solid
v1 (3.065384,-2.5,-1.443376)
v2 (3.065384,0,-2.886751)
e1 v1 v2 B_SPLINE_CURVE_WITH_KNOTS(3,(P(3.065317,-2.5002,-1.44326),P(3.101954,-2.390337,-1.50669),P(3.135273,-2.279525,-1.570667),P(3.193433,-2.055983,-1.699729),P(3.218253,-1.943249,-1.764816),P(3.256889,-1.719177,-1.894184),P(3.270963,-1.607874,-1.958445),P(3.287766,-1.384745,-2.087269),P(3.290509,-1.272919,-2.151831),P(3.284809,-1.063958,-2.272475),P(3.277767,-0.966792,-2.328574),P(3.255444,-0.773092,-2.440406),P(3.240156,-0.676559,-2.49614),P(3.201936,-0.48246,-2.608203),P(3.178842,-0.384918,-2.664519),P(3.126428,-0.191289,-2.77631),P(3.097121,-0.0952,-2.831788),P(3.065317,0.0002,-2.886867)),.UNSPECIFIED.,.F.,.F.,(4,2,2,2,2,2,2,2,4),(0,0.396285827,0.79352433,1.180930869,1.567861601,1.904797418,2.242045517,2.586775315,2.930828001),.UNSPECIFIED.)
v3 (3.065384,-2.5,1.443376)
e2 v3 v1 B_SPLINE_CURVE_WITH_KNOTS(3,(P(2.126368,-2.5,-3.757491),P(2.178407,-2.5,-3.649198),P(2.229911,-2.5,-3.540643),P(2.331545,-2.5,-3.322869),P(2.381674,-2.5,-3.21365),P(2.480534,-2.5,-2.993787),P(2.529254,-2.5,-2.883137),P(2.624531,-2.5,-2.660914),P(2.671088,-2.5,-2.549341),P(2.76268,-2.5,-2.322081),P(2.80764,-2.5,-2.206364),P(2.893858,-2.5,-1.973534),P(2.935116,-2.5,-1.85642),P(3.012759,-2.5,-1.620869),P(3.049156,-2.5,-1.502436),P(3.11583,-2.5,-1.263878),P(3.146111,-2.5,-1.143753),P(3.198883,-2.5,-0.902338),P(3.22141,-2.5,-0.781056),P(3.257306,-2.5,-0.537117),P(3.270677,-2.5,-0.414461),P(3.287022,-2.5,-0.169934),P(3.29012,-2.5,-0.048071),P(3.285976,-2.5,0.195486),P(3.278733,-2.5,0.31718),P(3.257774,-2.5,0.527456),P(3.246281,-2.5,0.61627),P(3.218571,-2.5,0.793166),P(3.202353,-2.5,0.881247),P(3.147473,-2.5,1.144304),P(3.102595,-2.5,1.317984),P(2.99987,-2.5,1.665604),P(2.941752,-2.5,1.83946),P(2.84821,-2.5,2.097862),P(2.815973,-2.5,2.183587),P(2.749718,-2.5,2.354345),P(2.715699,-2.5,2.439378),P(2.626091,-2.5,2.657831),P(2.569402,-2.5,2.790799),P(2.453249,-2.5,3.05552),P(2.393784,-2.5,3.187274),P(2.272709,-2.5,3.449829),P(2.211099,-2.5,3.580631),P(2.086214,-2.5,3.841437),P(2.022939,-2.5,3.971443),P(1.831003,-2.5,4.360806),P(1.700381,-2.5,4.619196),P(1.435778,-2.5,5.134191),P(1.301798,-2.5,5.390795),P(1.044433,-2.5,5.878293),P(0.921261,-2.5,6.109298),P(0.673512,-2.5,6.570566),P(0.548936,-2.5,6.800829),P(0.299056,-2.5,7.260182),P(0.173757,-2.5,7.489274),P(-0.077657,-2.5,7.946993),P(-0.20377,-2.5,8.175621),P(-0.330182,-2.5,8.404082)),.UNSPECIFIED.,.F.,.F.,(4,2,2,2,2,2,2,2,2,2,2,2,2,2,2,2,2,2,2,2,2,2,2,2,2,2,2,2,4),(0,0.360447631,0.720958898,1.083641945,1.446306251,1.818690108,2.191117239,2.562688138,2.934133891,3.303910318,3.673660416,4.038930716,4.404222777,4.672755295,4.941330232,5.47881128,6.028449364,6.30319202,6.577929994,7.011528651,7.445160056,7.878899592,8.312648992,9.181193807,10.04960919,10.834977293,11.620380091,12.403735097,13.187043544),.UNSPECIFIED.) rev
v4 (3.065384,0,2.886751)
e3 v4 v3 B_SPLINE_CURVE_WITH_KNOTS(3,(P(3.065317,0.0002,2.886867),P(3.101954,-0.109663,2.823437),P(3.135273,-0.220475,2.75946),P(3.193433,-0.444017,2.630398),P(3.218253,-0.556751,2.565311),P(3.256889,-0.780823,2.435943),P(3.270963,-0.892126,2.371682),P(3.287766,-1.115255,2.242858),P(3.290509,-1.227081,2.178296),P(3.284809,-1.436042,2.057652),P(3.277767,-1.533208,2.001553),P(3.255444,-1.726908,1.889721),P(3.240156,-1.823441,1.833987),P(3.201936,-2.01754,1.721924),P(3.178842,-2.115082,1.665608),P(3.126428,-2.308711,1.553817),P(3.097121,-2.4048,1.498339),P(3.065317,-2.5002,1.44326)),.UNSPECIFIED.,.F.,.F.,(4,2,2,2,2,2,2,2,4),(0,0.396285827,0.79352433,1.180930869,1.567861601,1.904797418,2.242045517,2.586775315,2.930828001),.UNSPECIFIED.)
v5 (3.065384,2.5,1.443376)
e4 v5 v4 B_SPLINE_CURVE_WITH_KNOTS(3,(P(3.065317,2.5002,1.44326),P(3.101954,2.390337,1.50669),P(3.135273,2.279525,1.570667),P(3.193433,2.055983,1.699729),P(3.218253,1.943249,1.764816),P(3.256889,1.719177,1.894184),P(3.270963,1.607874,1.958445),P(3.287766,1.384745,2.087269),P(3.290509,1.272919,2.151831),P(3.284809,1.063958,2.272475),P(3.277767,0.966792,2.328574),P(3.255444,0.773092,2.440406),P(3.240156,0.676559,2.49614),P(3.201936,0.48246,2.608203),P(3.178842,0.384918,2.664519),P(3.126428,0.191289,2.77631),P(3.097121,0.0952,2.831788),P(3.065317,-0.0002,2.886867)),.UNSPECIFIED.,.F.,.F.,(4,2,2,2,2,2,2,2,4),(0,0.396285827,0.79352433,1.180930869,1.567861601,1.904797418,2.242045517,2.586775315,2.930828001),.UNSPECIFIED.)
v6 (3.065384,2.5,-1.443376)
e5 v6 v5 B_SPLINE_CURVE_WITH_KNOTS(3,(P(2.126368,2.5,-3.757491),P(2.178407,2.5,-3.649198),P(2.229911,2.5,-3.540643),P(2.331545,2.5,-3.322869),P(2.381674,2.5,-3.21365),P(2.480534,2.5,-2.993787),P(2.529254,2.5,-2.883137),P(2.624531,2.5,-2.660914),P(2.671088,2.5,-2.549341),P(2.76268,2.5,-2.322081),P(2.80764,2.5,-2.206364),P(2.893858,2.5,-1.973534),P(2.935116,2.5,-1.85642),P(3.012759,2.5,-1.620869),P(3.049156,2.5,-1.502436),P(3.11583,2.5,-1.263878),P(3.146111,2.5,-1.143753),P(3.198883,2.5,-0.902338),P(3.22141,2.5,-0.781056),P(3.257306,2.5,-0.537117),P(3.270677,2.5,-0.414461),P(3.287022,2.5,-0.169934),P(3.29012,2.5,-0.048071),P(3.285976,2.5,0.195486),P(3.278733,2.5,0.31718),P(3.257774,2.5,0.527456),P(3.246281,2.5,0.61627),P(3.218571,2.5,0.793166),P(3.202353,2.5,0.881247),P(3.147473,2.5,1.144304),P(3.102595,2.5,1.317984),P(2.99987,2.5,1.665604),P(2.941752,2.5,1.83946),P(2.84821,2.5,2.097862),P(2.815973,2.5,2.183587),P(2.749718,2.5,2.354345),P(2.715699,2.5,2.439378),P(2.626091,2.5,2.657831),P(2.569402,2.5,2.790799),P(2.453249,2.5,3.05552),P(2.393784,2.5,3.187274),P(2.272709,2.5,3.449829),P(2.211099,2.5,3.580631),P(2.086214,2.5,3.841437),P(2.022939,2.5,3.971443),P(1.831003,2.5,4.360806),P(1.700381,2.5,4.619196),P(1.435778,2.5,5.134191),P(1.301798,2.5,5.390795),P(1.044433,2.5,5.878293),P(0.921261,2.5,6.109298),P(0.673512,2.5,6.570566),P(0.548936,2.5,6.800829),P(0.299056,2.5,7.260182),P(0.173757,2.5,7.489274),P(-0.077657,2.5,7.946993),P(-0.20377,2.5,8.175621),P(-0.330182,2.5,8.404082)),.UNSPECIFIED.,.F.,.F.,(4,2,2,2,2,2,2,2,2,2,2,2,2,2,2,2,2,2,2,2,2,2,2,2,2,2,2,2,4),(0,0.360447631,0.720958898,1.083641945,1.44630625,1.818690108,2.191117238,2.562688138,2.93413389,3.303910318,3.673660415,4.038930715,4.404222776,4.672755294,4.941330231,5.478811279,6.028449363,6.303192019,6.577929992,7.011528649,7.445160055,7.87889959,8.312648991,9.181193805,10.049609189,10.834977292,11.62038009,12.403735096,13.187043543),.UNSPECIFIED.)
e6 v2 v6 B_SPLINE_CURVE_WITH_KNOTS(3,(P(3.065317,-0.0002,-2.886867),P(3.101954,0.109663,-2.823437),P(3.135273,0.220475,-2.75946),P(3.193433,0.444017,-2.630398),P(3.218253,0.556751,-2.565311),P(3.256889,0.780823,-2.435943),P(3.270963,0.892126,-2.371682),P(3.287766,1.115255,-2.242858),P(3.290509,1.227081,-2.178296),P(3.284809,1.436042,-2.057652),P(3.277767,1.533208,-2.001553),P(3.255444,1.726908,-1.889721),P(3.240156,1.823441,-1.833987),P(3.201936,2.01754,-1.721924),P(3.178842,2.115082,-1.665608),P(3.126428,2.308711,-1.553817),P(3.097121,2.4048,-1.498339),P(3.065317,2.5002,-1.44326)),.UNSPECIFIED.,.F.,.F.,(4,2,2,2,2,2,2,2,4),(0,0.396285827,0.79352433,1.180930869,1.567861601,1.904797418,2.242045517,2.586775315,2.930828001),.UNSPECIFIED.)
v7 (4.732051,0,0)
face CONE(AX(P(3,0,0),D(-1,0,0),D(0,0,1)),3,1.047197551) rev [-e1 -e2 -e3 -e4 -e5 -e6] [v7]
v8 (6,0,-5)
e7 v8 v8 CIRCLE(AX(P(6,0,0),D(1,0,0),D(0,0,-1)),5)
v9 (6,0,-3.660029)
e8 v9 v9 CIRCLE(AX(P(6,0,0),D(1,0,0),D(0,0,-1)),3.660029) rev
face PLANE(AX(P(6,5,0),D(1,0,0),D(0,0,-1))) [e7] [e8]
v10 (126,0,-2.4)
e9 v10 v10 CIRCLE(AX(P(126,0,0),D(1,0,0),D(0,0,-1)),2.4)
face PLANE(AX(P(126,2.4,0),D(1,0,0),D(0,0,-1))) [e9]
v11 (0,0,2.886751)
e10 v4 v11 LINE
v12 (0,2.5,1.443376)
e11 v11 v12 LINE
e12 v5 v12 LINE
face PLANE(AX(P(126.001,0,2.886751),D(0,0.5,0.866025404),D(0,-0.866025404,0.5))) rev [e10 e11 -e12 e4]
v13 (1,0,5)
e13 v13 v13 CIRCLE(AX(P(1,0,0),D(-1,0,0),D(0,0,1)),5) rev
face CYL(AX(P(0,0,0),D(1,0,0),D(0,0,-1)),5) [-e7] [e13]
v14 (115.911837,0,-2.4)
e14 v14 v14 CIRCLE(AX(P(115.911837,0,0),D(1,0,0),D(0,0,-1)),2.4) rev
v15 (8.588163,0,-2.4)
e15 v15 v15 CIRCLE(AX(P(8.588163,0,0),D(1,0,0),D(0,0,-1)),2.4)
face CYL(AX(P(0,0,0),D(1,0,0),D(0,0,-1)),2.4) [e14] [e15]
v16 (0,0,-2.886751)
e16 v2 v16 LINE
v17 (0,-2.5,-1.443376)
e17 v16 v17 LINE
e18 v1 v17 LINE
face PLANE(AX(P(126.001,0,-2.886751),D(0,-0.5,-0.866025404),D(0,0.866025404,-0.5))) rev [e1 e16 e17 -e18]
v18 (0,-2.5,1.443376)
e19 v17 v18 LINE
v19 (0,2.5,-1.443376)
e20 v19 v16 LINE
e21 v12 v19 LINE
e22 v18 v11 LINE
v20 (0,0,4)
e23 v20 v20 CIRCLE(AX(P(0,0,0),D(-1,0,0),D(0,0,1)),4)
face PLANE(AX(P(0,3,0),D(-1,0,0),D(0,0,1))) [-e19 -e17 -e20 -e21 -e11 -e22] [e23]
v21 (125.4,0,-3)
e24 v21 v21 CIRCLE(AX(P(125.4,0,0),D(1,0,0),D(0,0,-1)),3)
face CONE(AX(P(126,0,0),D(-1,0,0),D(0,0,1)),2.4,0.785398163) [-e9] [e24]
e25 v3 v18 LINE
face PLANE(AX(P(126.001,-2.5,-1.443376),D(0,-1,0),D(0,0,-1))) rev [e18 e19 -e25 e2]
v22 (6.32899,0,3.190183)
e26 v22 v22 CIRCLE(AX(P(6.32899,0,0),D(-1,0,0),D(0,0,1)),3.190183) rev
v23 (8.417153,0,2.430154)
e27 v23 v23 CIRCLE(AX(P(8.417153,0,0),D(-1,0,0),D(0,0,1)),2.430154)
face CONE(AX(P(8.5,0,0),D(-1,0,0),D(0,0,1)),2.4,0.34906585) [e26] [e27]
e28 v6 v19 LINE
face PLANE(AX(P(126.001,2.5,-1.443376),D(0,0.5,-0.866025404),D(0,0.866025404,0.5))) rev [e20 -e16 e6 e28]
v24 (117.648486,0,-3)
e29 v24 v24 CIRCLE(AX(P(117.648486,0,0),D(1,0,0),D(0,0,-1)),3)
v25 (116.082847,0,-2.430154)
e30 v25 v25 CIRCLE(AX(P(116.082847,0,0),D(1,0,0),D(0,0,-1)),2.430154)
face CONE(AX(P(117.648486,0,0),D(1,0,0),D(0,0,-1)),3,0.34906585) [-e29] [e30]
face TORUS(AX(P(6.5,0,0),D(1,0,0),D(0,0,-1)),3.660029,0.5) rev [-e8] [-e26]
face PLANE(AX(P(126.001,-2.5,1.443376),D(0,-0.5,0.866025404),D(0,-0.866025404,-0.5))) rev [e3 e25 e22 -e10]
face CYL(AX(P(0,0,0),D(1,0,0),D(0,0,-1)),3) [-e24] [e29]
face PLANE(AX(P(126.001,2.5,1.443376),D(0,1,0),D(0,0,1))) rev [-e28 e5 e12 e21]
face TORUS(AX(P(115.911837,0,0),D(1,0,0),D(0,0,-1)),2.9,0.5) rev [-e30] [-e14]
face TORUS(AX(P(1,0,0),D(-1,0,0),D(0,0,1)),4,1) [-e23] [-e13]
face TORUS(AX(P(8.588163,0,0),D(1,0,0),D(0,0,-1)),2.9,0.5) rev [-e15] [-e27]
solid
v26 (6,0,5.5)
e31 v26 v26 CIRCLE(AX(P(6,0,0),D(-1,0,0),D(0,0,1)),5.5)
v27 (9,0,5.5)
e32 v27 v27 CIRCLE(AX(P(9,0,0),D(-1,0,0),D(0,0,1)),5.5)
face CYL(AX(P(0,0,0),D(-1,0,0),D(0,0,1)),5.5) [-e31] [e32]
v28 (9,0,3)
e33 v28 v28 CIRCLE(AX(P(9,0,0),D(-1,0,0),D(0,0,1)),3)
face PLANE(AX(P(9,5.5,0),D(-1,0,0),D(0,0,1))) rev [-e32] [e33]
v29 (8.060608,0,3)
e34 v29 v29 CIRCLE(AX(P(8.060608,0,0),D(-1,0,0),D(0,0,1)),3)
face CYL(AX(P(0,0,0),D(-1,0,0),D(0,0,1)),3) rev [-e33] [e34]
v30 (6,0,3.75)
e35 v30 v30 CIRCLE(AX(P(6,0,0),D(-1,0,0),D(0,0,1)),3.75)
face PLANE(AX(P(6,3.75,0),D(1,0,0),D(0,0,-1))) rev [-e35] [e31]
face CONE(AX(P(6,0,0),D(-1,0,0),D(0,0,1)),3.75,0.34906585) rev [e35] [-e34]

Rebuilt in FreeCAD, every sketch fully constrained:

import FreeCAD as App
import Part
import Sketcher

V = App.Vector
Q = App.Units.Quantity


def edges_at(feature, points):
    """Names of the edges that pass closest to the given points."""
    edges = feature.Shape.Edges
    near = lambda p: min(range(len(edges)), key=lambda i: edges[i].distToShape(Part.Vertex(*p))[0])
    return sorted({f"Edge{near(p) + 1}" for p in points})


def add_polygon(sketch, points):
    """Adds a closed chain of lines whose ends are joined by coincident constraints."""
    first, n = sketch.GeometryCount, len(points)
    for a, b in zip(points, points[1:] + points[:1]):
        sketch.addGeometry(Part.LineSegment(App.Vector(*a, 0), App.Vector(*b, 0)), False)
    for i in range(n):
        sketch.addConstraint(Sketcher.Constraint("Coincident", first + i, 2, first + (i + 1) % n, 1))

doc = App.newDocument("Part")
body = doc.addObject("PartDesign::Body", "Body")

# Sketch on XY plane
sketch1 = body.newObject("Sketcher::SketchObject", "Sketch")
sketch1.AttachmentSupport = (doc.getObject("XY_Plane"), [""])
sketch1.MapMode = "FlatFace"
add_polygon(sketch1, [(6, 5), (0, 5), (0, 3), (3, 3), (4.7, 0), (126, 0), (126, 2.4), (125.4, 3), (117.6, 3), (116, 2.4), (8.5, 2.4), (6, 3.3)])  # lines 0-11
sketch1.addConstraint([
    Sketcher.Constraint("Horizontal", 0),
    Sketcher.Constraint("Vertical", 1),
    Sketcher.Constraint("Horizontal", 2),
    Sketcher.Constraint("Horizontal", 4),
    Sketcher.Constraint("Vertical", 5),
    Sketcher.Constraint("Horizontal", 7),
    Sketcher.Constraint("Horizontal", 9),
    Sketcher.Constraint("Vertical", 11),
    Sketcher.Constraint("PointOnObject", 0, 2, -2),
    Sketcher.Constraint("PointOnObject", 3, 2, -1),
    Sketcher.Constraint("Horizontal", 2, 2, 6, 2),
    Sketcher.Constraint("Horizontal", 5, 2, 8, 2),
    Sketcher.Constraint("DistanceX", 0, 2, 0, 1, Q("6 mm")),
    Sketcher.Constraint("DistanceX", 2, 1, 2, 2, Q("3 mm")),
    Sketcher.Constraint("DistanceY", 1, 2, 1, 1, Q("2 mm")),
    Sketcher.Constraint("Angle", 3, Q("-60 deg")),
    Sketcher.Constraint("Angle", 6, Q("135 deg")),
    Sketcher.Constraint("Angle", 8, Q("-160 deg")),
    Sketcher.Constraint("Angle", 10, Q("160 deg")),
    Sketcher.Constraint("DistanceX", 9, 2, 9, 1, Q("107.5 mm")),
    Sketcher.Constraint("DistanceY", 5, 1, 5, 2, Q("2.4 mm")),
    Sketcher.Constraint("DistanceY", -1, 1, 0, 2, Q("5 mm")),
    Sketcher.Constraint("DistanceX", -1, 1, 4, 2, Q("126 mm")),
    Sketcher.Constraint("DistanceX", -1, 1, 8, 2, Q("116 mm")),
])
revolution = body.newObject("PartDesign::Revolution", "Revolution")
revolution.Profile = sketch1
revolution.ReferenceAxis = (sketch1, ["H_Axis"])
revolution.Angle = 360

# Sketch on YZ plane
sketch2 = body.newObject("Sketcher::SketchObject", "Sketch001")
sketch2.AttachmentSupport = (doc.getObject("YZ_Plane"), [""])
sketch2.MapMode = "FlatFace"
sketch2.addGeometry(Part.Circle(V(0, 0, 0), V(0, 0, 1), 3), False)  # 0
add_polygon(sketch2, [(-2.5, -1.4), (0, -2.9), (2.5, -1.4), (2.5, 1.4), (0, 2.9), (-2.5, 1.4)])  # lines 1-6
sketch2.addConstraint([
    Sketcher.Constraint("Vertical", 3),
    Sketcher.Constraint("Vertical", 6),
    Sketcher.Constraint("Coincident", 0, 3, -1, 1),
    Sketcher.Constraint("Symmetric", 1, 2, 4, 2, -1, 1),
    Sketcher.Constraint("Symmetric", 2, 2, 5, 2, -1, 1),
    Sketcher.Constraint("PointOnObject", 1, 2, -2),
    Sketcher.Constraint("Parallel", 1, 4),
    Sketcher.Constraint("Horizontal", 3, 2, 5, 2),
    Sketcher.Constraint("Diameter", 0, Q("6 mm")),
    Sketcher.Constraint("Angle", 1, Q("-30 deg")),
    Sketcher.Constraint("DistanceX", 5, 2, 3, 2, Q("5 mm")),
    Sketcher.Constraint("DistanceY", 3, 1, 3, 2, Q("2.886751 mm")),
])
pad1 = body.newObject("PartDesign::Pad", "Pad")
pad1.Profile = sketch2
pad1.Type = "UpToFirst"
doc.recompute()

fillet = body.newObject("PartDesign::Fillet", "Fillet")
fillet.Base = (pad1, edges_at(pad1, [(0, -5, 0)]))
fillet.Radius = 1
doc.recompute()

fillet2 = body.newObject("PartDesign::Fillet", "Fillet001")
fillet2.Base = (fillet, edges_at(fillet, [(116, -2.4, 0), (8.5, -2.4, 0), (6, -3.31, 0)]))
fillet2.Radius = 0.5
body2 = doc.addObject("PartDesign::Body", "Body001")

# Sketch on XY plane
sketch3 = body2.newObject("Sketcher::SketchObject", "Sketch002")
sketch3.AttachmentSupport = (doc.getObject("XY_Plane001"), [""])
sketch3.MapMode = "FlatFace"
add_polygon(sketch3, [(9, 5.5), (6, 5.5), (6, 3.8), (8.1, 3), (9, 3)])  # lines 0-4
sketch3.addConstraint([
    Sketcher.Constraint("Horizontal", 0),
    Sketcher.Constraint("Vertical", 1),
    Sketcher.Constraint("Horizontal", 3),
    Sketcher.Constraint("Vertical", 4),
    Sketcher.Constraint("DistanceX", 0, 2, 0, 1, Q("3 mm")),
    Sketcher.Constraint("Angle", 2, Q("-20 deg")),
    Sketcher.Constraint("DistanceY", 4, 1, 4, 2, Q("2.5 mm")),
    Sketcher.Constraint("DistanceX", -1, 1, 0, 2, Q("6 mm")),
    Sketcher.Constraint("DistanceY", -1, 1, 2, 2, Q("3 mm")),
    Sketcher.Constraint("DistanceY", 1, 2, 1, 1, Q("1.75 mm")),
])
revolution2 = body2.newObject("PartDesign::Revolution", "Revolution001")
revolution2.Profile = sketch3
revolution2.ReferenceAxis = (sketch3, ["H_Axis"])
revolution2.Angle = 360

doc.recompute()
